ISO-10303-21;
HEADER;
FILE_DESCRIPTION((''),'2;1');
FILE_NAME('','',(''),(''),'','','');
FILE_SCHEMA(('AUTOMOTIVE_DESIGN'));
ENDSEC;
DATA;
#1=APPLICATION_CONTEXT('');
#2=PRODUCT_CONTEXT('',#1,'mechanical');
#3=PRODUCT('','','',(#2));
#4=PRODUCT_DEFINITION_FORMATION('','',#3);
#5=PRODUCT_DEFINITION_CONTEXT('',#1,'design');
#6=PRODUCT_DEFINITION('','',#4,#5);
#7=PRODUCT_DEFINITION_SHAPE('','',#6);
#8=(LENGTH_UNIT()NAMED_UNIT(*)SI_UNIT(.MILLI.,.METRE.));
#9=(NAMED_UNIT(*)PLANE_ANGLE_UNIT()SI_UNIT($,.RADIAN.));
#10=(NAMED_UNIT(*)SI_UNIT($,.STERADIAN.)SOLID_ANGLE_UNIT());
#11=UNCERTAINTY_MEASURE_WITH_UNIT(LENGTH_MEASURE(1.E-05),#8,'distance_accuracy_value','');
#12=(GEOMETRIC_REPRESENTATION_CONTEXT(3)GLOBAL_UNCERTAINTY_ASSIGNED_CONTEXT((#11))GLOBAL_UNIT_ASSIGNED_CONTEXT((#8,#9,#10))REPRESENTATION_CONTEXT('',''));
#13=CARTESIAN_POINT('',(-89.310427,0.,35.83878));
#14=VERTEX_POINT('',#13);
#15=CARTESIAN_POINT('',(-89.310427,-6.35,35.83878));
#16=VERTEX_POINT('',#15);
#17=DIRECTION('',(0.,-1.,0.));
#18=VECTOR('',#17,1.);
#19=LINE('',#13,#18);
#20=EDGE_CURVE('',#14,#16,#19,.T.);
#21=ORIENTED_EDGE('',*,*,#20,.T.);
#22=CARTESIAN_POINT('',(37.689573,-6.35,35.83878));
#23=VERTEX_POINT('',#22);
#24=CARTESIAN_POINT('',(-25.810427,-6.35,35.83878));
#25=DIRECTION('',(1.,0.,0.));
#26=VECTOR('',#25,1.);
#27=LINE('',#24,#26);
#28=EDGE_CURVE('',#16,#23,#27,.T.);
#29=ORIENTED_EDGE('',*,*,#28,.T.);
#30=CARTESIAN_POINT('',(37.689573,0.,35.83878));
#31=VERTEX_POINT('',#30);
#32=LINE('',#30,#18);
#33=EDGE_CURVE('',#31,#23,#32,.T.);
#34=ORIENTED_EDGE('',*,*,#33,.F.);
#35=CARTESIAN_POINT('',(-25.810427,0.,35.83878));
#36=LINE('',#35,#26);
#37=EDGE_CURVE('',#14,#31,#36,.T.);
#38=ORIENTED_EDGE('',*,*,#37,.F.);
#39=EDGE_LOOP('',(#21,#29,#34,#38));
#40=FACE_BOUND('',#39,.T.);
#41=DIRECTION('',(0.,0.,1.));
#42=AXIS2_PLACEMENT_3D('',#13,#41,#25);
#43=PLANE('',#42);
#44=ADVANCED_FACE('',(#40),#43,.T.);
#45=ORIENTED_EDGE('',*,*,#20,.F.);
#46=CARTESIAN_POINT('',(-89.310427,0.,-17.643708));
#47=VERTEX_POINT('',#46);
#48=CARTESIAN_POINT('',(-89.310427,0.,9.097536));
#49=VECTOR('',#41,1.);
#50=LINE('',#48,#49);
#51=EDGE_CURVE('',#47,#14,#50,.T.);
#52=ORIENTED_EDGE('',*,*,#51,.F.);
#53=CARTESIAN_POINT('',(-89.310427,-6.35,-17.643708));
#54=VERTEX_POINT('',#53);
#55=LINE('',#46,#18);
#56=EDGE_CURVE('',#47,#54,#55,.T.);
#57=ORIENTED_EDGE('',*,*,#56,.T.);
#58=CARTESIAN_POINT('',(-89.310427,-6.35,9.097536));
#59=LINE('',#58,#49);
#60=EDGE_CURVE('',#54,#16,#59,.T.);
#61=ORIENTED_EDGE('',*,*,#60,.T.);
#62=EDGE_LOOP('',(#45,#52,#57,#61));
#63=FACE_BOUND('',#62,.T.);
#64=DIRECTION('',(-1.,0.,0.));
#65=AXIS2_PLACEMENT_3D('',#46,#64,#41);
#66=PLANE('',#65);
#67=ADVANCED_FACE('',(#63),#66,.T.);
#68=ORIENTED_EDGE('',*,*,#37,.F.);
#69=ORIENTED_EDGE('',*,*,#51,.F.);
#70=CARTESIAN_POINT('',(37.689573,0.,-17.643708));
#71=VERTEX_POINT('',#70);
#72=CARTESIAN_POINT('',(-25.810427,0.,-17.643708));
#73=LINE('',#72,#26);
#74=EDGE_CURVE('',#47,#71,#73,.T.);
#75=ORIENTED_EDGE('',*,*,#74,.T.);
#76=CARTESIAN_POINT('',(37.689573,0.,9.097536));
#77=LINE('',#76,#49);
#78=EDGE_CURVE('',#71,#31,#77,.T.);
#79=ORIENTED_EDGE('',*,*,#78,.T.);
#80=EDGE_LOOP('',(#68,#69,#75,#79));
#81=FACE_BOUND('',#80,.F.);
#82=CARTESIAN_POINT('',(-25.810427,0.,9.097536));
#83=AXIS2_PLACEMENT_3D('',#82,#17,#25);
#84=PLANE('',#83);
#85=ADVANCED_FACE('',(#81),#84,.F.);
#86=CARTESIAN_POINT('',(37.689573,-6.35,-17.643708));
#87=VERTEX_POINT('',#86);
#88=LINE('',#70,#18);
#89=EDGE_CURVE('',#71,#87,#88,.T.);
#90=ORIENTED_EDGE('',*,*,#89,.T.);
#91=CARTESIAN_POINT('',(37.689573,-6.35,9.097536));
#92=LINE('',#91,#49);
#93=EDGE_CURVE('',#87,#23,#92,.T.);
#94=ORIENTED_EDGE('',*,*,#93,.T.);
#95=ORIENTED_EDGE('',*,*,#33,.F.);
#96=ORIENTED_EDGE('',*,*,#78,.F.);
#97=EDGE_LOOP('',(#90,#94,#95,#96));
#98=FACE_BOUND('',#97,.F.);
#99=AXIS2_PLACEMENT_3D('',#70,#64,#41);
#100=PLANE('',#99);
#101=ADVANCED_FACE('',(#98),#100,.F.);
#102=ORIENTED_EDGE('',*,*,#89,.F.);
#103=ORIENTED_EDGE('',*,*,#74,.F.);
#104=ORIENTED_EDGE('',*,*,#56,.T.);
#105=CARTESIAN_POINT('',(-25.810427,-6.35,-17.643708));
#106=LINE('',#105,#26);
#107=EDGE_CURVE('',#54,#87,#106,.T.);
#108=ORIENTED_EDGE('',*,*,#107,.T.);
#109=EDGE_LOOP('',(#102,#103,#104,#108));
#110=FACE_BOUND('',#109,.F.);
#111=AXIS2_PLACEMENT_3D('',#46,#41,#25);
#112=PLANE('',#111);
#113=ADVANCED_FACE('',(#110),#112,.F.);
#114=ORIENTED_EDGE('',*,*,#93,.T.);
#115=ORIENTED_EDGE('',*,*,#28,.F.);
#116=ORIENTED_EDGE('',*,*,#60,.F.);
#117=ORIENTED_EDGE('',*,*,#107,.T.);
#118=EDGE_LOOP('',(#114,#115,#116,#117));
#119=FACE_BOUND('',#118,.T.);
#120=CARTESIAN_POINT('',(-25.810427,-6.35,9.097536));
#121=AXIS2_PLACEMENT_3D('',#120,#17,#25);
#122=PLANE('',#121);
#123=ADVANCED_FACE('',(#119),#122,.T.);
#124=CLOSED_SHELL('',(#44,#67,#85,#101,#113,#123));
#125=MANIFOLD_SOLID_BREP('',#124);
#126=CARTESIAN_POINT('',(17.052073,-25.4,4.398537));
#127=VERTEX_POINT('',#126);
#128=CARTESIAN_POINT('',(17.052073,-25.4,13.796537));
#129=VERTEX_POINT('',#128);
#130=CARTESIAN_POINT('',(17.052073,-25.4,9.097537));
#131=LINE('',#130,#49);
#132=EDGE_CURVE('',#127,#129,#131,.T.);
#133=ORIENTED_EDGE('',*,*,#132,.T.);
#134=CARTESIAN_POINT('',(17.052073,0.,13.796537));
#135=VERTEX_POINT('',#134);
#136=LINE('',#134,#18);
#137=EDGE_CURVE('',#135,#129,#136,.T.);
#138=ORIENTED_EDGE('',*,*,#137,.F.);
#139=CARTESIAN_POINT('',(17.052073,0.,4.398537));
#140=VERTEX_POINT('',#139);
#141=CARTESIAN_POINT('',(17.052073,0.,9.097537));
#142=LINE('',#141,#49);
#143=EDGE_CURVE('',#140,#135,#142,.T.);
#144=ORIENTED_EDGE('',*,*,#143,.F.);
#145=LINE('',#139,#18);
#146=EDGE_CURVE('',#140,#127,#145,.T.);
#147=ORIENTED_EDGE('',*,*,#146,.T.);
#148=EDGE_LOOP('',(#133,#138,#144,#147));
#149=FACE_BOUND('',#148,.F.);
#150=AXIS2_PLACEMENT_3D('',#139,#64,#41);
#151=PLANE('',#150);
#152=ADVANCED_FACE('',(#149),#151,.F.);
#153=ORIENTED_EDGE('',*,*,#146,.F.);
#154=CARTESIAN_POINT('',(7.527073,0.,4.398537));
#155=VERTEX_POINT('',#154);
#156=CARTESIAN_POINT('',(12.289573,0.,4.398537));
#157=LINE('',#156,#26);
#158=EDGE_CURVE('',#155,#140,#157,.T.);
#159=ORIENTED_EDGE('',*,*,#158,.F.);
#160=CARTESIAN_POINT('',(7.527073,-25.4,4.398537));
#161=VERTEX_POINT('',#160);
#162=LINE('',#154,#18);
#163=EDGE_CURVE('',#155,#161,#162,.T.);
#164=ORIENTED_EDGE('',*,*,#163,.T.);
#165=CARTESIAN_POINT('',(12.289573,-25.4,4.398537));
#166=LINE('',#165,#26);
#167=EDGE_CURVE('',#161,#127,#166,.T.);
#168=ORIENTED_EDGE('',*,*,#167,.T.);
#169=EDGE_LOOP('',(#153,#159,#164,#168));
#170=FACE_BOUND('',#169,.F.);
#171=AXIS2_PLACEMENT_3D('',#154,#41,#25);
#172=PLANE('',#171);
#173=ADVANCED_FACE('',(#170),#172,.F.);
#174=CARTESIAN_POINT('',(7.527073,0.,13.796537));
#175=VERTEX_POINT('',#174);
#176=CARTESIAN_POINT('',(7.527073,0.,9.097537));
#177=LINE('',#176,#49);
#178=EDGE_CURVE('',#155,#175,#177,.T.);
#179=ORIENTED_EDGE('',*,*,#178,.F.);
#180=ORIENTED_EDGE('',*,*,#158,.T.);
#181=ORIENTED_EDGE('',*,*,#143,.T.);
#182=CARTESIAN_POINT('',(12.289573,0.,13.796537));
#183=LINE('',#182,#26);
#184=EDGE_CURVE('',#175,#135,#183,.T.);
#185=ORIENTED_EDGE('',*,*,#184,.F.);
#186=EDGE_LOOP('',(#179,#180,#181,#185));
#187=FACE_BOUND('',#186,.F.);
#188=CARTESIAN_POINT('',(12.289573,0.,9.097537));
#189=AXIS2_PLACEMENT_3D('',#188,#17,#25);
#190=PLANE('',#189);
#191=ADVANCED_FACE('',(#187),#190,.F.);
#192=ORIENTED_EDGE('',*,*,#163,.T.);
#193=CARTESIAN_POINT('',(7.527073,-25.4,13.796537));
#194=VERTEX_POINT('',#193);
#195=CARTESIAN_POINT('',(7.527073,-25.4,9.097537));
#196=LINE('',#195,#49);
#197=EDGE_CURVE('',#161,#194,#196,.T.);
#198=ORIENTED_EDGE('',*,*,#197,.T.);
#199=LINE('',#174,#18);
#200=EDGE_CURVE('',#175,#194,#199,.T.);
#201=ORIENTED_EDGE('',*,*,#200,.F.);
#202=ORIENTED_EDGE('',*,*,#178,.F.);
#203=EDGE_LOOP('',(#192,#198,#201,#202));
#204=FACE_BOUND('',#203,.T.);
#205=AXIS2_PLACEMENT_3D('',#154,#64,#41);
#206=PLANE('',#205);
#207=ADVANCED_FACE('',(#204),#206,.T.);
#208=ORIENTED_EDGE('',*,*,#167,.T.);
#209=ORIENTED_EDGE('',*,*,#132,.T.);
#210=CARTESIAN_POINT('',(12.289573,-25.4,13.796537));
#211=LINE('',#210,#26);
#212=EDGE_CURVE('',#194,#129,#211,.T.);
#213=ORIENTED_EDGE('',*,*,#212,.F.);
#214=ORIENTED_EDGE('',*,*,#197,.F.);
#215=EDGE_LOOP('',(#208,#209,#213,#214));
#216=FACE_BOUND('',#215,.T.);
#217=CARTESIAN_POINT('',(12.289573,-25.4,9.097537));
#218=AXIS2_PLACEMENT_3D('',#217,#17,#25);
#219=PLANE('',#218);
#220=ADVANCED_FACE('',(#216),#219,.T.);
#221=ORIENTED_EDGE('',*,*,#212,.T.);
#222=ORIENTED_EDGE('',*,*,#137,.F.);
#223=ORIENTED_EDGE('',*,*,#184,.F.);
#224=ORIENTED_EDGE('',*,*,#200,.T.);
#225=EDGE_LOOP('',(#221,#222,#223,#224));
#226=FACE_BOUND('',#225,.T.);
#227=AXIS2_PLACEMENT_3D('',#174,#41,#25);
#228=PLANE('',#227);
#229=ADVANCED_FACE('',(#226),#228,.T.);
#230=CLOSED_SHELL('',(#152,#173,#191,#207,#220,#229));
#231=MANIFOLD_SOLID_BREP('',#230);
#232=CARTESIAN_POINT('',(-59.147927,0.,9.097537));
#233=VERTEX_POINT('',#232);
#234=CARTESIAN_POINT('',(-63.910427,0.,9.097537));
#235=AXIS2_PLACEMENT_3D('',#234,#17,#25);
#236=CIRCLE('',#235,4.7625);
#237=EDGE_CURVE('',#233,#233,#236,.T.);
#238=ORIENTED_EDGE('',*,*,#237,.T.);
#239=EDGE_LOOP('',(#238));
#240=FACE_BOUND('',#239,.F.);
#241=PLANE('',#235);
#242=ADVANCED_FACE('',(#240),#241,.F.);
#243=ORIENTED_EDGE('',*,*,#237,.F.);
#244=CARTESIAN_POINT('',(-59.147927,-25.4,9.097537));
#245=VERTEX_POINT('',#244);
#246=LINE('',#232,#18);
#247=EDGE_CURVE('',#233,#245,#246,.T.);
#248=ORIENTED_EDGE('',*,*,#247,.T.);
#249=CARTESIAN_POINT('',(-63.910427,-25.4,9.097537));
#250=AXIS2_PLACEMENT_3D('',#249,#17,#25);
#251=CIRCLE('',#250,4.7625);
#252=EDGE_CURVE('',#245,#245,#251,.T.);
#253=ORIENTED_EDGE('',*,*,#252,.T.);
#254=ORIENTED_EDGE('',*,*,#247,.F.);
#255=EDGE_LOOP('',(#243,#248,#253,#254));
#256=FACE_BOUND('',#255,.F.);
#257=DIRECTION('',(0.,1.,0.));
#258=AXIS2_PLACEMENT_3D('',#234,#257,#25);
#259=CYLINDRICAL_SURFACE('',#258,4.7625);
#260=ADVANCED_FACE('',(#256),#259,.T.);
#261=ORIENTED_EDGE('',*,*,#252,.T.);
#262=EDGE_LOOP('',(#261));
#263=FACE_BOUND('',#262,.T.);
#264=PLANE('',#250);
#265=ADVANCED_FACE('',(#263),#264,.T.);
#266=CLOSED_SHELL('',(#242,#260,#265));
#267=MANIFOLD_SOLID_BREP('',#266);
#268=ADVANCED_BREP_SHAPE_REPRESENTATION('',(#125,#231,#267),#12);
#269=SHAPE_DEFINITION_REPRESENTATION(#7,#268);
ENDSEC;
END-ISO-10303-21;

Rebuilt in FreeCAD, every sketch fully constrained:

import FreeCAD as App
import Part
import Sketcher
Q = App.Units.Quantity


def add_polygon(sketch, points):
    """Adds a closed chain of lines whose ends are joined by coincident constraints."""
    first, n = sketch.GeometryCount, len(points)
    for a, b in zip(points, points[1:] + points[:1]):
        sketch.addGeometry(Part.LineSegment(App.Vector(*a, 0), App.Vector(*b, 0)), False)
    for i in range(n):
        sketch.addConstraint(Sketcher.Constraint("Coincident", first + i, 2, first + (i + 1) % n, 1))

doc = App.newDocument("Part")
body = doc.addObject("PartDesign::Body", "Body")

# Sketch on XZ plane
sketch1 = body.newObject("Sketcher::SketchObject", "Sketch")
sketch1.AttachmentSupport = (doc.getObject("XZ_Plane"), [""])
sketch1.MapMode = "FlatFace"
add_polygon(sketch1, [(-89.310427, 35.83878), (-89.310427, -17.643708), (37.689573, -17.643708), (37.689573, 35.83878)])  # lines 0-3
sketch1.addConstraint([
    Sketcher.Constraint("Vertical", 0),
    Sketcher.Constraint("Horizontal", 1),
    Sketcher.Constraint("Vertical", 2),
    Sketcher.Constraint("Horizontal", 3),
    Sketcher.Constraint("DistanceX", 1, 1, 1, 2, Q("5 in")),
    Sketcher.Constraint("DistanceY", 0, 2, 0, 1, 53.482489),
    Sketcher.Constraint("DistanceY", 0, 2, -1, 1, 17.643708),
    Sketcher.Constraint("DistanceX", 0, 2, -1, 1, 89.310427),
])
pad1 = body.newObject("PartDesign::Pad", "Pad")
pad1.Profile = sketch1
pad1.Length = Q("0.25 in")
body2 = doc.addObject("PartDesign::Body", "Body001")
body2.AllowCompound = True

# Sketch on XZ plane
sketch2 = body2.newObject("Sketcher::SketchObject", "Sketch001")
sketch2.AttachmentSupport = (doc.getObject("XZ_Plane001"), [""])
sketch2.MapMode = "FlatFace"
sketch2.addGeometry(Part.Circle(App.Vector(-63.910427, 9.097537, 0), App.Vector(0, 0, 1), 4.7625), False)  # 0
add_polygon(sketch2, [(7.527073, 13.796537), (7.527073, 4.398537), (17.052073, 4.398537), (17.052073, 13.796537)])  # lines 1-4
sketch2.addConstraint([
    Sketcher.Constraint("Vertical", 1),
    Sketcher.Constraint("Horizontal", 2),
    Sketcher.Constraint("Vertical", 3),
    Sketcher.Constraint("Horizontal", 4),
    Sketcher.Constraint("Diameter", 0, Q("0.375 in")),
    Sketcher.Constraint("DistanceY", 1, 2, 1, 1, Q("0.37 in")),
    Sketcher.Constraint("DistanceX", 2, 1, 2, 2, Q("0.375 in")),
    Sketcher.Constraint("DistanceX", 0, 3, 1, 2, Q("2.8125 in")),
    Sketcher.Constraint("DistanceY", 1, 2, 0, 3, Q("0.185 in")),
    Sketcher.Constraint("DistanceX", 0, 3, -1, 1, 63.910427),
    Sketcher.Constraint("DistanceY", -1, 1, 0, 3, 9.097537),
])
pad2 = body2.newObject("PartDesign::Pad", "Pad001")
pad2.Profile = sketch2
pad2.Length = Q("1 in")

doc.recompute()
